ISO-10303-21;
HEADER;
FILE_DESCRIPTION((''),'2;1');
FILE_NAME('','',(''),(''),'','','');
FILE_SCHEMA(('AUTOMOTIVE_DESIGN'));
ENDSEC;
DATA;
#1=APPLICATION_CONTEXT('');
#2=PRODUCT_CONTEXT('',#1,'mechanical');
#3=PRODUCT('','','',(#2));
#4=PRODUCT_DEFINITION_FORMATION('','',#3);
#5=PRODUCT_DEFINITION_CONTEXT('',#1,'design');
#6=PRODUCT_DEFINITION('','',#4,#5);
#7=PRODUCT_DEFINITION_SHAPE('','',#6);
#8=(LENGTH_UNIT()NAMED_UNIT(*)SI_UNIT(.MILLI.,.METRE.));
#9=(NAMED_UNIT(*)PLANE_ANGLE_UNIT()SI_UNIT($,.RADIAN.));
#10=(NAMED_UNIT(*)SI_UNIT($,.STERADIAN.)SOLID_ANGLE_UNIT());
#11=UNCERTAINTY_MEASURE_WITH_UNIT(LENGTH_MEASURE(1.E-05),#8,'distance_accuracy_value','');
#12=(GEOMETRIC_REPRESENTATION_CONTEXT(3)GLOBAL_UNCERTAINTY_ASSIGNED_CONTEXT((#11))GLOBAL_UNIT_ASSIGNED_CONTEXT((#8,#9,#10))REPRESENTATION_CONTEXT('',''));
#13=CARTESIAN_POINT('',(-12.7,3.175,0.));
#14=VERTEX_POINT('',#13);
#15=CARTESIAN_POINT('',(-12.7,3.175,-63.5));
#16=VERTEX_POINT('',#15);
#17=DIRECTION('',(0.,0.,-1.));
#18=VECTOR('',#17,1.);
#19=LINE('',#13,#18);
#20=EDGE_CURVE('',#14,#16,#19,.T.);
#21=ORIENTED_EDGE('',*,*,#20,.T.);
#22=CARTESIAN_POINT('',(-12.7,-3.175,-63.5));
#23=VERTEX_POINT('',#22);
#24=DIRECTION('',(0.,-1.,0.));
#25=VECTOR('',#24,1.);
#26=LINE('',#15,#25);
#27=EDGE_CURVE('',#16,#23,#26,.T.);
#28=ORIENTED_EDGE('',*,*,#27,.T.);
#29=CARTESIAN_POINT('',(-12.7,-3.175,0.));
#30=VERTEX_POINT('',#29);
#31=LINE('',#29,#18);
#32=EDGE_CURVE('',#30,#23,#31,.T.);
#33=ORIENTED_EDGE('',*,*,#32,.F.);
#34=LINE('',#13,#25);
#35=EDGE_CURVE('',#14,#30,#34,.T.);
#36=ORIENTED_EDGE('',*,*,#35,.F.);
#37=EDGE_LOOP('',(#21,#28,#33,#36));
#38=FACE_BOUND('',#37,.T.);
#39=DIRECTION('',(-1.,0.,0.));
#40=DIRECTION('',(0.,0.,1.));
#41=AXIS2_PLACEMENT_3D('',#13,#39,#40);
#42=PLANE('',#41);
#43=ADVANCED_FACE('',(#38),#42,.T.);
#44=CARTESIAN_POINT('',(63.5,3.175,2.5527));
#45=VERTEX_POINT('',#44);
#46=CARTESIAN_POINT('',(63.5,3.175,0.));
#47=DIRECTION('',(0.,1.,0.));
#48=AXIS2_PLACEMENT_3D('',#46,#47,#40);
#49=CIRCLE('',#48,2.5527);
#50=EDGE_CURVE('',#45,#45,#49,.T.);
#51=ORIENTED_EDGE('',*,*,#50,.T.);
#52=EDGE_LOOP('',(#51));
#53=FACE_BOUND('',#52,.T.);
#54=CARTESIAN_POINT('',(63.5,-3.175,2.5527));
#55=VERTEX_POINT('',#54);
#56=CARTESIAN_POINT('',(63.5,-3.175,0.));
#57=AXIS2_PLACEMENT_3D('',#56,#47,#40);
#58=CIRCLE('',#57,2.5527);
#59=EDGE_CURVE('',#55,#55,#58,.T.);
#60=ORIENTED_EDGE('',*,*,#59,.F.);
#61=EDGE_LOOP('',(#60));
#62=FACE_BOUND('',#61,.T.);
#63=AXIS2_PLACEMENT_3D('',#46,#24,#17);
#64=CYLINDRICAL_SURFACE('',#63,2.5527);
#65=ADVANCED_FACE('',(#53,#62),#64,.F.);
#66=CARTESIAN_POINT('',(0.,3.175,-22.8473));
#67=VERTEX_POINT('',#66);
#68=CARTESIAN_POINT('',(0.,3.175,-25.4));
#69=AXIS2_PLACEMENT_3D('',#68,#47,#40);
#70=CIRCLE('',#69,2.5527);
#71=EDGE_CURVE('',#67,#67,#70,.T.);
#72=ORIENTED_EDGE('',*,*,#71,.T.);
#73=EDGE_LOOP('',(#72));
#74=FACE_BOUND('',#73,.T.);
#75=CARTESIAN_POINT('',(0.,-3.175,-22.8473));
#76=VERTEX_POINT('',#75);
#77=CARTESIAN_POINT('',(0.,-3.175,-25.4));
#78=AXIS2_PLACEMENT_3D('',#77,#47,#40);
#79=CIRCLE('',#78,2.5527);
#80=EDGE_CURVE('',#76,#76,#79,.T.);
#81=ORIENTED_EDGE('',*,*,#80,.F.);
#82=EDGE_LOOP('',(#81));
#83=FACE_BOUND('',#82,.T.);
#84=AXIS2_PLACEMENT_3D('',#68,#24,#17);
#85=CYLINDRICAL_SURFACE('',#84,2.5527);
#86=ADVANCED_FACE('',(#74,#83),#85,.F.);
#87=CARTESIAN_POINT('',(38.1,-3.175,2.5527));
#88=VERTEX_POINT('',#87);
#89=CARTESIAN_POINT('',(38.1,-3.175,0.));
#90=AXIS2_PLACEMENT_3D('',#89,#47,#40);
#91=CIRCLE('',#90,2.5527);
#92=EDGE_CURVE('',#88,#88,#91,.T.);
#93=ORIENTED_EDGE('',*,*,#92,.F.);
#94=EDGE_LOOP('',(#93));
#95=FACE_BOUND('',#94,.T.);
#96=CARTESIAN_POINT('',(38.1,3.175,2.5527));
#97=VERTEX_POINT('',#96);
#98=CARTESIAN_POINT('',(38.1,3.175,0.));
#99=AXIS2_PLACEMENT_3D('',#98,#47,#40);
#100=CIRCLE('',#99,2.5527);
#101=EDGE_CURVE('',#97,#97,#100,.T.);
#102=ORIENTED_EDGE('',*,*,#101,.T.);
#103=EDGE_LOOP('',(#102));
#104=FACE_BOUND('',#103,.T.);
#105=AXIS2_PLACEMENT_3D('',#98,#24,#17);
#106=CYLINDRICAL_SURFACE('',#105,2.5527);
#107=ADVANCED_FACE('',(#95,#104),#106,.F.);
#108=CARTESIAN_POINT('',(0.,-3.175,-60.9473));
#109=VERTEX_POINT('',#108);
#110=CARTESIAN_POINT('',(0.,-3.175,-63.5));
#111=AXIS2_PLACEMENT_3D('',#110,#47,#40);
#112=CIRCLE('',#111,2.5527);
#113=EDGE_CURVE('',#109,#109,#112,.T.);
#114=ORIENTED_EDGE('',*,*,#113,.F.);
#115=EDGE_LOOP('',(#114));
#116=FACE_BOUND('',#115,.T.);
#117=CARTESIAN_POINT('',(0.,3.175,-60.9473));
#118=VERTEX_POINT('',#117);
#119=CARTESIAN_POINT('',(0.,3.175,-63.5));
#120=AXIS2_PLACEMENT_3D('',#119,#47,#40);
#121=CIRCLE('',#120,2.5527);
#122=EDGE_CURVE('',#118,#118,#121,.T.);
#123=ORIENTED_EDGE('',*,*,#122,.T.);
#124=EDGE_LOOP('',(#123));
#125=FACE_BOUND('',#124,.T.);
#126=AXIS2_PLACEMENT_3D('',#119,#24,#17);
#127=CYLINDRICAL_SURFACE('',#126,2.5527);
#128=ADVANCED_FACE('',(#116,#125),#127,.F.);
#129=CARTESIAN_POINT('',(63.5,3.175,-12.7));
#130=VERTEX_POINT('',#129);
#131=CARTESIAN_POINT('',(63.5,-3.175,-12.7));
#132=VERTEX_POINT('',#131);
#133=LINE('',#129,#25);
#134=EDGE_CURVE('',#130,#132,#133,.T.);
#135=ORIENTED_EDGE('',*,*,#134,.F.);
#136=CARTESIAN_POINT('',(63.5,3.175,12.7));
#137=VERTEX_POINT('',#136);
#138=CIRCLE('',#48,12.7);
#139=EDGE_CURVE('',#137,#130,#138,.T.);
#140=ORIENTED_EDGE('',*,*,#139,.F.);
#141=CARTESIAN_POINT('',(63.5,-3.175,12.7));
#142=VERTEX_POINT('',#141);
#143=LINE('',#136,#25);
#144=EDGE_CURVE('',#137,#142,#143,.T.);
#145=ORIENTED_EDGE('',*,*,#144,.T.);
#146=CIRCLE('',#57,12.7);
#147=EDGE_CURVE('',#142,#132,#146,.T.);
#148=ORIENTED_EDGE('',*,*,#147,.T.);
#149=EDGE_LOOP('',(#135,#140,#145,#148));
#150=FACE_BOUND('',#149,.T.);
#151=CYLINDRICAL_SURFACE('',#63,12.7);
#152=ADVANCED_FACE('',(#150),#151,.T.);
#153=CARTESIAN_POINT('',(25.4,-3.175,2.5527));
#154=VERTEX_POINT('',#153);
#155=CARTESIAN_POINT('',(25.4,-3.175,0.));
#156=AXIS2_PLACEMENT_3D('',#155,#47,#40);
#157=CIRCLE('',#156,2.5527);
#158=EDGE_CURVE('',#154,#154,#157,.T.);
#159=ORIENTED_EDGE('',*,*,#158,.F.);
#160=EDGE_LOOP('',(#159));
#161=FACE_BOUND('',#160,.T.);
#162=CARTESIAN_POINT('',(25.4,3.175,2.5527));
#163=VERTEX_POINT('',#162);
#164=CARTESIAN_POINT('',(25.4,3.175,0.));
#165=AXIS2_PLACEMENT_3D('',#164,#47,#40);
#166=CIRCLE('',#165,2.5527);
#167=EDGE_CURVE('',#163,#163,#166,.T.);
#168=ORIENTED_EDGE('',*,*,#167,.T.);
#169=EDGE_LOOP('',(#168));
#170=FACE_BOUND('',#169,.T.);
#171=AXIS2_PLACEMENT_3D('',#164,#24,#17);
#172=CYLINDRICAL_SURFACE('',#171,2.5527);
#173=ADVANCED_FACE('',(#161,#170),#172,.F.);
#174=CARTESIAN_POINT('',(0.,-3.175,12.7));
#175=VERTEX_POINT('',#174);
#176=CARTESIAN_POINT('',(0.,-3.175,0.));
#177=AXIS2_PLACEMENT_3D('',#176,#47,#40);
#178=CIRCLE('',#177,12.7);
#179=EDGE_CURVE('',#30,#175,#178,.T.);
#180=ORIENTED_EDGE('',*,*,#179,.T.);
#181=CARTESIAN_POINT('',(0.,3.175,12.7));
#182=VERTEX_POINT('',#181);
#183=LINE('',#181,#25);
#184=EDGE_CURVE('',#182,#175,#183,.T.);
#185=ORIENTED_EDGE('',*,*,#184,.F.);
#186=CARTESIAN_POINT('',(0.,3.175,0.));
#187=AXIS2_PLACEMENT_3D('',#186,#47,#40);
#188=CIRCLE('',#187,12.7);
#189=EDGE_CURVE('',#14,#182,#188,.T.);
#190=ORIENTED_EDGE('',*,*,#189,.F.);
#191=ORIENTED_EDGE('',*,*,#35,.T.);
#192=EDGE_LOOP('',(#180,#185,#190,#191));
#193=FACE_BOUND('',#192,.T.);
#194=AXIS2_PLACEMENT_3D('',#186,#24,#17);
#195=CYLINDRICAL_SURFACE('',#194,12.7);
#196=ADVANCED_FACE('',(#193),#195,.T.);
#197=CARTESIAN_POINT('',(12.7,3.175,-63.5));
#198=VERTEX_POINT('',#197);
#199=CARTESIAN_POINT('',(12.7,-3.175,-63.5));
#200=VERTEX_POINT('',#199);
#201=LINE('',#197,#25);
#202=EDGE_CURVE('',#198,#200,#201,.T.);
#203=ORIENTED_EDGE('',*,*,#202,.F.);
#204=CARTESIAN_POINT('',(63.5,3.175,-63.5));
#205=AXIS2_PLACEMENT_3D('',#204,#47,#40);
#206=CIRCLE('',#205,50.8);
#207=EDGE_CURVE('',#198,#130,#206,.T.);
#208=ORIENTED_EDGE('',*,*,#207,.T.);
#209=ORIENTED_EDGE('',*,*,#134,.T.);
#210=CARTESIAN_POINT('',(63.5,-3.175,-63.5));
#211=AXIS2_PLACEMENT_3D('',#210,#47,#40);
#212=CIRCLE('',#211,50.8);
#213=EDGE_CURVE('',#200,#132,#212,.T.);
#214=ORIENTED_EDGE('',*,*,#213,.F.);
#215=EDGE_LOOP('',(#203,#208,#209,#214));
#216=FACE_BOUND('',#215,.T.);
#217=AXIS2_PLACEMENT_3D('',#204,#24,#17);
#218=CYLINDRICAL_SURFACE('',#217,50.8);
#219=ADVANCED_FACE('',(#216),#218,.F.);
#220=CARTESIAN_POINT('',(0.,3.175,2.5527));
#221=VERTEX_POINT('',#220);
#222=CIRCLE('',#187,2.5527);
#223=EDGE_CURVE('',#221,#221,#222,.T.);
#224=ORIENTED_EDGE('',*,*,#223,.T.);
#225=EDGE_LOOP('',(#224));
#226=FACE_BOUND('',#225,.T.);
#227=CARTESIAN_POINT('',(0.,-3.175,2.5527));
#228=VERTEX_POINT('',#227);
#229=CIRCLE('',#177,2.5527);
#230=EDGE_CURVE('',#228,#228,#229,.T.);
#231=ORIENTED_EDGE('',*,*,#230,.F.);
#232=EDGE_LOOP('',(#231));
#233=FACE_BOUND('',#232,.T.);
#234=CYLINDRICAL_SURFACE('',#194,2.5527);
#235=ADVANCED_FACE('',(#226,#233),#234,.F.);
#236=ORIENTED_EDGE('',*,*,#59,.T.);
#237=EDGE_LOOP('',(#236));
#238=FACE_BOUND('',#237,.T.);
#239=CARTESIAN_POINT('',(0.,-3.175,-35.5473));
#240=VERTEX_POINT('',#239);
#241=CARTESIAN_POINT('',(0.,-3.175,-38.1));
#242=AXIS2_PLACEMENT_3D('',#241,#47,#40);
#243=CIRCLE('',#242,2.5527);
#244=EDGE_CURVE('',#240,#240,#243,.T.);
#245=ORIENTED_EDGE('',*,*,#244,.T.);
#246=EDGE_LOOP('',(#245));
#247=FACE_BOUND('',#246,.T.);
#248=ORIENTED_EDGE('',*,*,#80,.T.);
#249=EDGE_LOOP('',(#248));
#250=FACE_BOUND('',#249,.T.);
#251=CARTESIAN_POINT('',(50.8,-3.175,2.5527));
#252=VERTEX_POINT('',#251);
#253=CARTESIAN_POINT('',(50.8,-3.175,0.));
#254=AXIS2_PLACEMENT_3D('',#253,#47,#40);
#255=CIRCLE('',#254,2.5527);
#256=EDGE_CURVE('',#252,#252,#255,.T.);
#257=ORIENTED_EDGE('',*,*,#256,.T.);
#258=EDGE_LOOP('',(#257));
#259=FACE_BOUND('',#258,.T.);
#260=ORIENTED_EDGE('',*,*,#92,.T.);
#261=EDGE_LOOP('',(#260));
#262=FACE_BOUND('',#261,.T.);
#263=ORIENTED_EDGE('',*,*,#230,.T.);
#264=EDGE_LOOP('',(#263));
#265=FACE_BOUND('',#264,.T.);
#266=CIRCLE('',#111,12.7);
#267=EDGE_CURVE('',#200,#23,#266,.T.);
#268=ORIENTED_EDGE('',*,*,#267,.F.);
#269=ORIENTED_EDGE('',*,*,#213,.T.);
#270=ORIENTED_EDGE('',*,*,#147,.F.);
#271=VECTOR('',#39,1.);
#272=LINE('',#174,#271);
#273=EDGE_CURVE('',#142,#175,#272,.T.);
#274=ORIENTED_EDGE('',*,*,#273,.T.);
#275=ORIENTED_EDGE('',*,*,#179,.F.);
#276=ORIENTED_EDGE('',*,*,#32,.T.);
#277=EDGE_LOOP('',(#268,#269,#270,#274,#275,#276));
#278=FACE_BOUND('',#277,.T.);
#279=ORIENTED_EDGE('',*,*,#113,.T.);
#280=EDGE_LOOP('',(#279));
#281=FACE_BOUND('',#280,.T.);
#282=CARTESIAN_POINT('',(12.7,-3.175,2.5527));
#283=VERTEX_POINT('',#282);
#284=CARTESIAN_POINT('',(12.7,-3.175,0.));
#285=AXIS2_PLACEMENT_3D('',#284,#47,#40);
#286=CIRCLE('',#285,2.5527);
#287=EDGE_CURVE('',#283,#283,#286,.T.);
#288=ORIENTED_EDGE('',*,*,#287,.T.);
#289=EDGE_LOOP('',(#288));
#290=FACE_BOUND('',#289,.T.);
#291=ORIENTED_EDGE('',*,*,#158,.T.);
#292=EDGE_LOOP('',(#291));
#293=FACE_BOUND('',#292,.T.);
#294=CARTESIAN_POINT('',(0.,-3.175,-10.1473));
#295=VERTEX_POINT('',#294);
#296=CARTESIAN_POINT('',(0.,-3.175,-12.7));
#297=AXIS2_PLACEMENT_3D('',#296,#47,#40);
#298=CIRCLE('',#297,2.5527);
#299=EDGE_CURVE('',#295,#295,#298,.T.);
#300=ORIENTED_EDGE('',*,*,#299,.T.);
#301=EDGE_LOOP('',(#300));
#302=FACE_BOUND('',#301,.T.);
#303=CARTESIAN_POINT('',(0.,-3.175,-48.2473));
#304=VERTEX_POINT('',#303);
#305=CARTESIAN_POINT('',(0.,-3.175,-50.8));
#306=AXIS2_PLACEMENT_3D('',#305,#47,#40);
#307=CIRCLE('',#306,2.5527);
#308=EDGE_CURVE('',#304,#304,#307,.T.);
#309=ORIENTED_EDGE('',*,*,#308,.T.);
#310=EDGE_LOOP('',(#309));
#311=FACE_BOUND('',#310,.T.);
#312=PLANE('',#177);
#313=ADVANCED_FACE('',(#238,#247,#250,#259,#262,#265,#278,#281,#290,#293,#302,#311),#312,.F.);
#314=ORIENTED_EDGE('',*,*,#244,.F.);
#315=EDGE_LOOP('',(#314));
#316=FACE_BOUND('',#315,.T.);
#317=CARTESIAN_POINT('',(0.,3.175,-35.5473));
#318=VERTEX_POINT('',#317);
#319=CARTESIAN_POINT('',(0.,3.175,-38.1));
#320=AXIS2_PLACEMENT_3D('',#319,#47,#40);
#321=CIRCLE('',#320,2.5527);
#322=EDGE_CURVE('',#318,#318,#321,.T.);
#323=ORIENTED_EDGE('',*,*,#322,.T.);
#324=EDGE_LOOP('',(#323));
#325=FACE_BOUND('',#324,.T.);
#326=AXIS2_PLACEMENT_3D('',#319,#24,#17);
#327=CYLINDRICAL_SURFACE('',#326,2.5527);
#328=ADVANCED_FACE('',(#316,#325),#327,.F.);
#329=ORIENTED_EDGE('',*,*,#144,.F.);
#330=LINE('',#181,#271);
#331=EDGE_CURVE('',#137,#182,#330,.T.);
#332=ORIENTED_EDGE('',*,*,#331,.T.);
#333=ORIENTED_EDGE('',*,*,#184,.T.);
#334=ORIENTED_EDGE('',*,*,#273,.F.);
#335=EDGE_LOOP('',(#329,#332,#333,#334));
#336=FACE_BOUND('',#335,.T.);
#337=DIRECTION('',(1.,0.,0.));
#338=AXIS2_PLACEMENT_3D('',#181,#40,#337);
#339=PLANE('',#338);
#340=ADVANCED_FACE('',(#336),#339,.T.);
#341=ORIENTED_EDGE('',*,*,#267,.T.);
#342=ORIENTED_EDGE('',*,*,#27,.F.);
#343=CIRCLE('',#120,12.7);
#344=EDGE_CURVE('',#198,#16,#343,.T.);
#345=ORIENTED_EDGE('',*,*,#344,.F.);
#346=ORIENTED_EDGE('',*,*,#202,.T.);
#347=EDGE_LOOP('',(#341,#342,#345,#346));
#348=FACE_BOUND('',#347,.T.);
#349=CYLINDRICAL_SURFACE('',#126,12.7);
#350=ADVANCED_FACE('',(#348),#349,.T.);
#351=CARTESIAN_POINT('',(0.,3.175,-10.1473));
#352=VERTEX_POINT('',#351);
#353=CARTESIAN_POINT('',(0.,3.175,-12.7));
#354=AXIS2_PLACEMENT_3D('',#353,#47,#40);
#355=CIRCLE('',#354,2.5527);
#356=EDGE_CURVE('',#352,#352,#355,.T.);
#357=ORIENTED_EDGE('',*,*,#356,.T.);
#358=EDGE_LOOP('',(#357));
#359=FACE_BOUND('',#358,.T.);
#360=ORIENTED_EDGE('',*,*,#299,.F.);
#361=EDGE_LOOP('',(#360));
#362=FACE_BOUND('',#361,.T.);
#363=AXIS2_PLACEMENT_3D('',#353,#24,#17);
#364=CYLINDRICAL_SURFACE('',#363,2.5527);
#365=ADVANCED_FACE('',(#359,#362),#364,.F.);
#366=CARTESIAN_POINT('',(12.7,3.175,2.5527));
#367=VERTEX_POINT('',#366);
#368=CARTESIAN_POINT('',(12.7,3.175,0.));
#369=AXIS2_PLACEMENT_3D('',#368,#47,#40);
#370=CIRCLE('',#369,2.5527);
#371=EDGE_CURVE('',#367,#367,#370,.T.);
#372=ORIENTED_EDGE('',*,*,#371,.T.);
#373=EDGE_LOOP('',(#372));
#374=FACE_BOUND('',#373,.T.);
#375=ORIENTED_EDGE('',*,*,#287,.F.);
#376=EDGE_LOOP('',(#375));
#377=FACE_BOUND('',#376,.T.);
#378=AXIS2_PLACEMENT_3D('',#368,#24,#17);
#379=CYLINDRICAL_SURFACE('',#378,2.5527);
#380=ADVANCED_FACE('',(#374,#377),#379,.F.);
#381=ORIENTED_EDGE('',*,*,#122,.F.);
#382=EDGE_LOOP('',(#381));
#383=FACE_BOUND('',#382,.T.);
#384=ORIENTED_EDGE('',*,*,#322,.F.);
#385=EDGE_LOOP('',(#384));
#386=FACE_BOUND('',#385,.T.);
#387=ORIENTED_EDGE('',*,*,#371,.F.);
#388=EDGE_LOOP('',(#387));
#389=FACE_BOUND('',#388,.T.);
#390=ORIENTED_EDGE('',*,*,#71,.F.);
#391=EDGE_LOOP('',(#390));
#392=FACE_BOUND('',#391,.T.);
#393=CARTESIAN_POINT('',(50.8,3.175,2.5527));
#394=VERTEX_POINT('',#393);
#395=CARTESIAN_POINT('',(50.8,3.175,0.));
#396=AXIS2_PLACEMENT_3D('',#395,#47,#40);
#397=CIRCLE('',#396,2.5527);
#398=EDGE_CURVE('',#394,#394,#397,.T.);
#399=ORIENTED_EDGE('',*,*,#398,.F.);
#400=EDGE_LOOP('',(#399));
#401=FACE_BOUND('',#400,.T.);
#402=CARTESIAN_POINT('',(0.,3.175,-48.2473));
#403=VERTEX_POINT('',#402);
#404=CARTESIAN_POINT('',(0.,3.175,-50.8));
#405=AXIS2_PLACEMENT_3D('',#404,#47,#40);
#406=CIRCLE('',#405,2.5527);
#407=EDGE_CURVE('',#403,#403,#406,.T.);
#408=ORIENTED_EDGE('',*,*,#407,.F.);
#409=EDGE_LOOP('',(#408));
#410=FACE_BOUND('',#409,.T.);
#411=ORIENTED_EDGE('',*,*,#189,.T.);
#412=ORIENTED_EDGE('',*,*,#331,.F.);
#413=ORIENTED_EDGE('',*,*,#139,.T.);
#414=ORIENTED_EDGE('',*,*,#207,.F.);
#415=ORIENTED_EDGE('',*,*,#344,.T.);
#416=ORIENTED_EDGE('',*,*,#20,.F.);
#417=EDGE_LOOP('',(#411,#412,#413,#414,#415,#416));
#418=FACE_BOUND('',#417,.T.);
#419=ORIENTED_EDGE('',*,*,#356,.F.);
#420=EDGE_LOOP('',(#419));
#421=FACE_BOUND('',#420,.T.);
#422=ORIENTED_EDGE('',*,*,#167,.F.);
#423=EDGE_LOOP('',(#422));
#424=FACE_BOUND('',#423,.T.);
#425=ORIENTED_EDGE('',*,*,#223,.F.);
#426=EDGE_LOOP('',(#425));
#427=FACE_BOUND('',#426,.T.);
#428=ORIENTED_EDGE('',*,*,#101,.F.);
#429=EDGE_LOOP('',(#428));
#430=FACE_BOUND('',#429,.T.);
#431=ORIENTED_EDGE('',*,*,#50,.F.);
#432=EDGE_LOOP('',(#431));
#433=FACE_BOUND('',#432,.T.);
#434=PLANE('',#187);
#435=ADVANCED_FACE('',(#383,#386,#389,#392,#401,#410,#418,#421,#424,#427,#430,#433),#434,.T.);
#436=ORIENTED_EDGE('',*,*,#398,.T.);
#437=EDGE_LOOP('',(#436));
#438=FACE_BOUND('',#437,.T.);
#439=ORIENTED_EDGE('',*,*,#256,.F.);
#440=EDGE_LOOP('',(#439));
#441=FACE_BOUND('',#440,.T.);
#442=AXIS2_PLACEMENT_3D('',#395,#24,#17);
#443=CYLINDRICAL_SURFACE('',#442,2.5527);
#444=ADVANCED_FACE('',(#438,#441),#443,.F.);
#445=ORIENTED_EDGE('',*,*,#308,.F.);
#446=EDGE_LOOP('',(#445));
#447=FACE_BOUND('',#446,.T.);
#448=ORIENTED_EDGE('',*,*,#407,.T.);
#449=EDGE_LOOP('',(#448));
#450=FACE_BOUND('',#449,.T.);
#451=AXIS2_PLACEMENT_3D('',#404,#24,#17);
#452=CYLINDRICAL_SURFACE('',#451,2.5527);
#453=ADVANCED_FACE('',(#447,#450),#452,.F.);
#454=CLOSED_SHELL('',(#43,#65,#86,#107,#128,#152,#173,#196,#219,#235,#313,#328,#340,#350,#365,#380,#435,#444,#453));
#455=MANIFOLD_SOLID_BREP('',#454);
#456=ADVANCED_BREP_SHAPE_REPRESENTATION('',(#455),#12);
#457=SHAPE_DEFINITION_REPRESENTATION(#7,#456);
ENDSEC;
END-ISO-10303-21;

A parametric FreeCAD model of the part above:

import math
import FreeCAD as App
import Part
import Sketcher
from FreeCAD import Vector
Q = App.Units.Quantity

doc = App.newDocument("Part")
body = doc.addObject("PartDesign::Body", "Body")

# Sketch on XZ plane
sketch1 = body.newObject("Sketcher::SketchObject", "Sketch")
sketch1.AttachmentSupport = (doc.getObject("XZ_Plane"), [""])
sketch1.MapMode = "FlatFace"
sketch1.addGeometry([
    Part.LineSegment(Vector(-12.7, -63.5, 0), Vector(-12.7, 0, 0)),  # 0
    Part.ArcOfCircle(Part.Circle(Vector(0, 0, 0), Vector(0, 0, 1), 12.7), math.radians(90), math.radians(180)),  # 1
    Part.LineSegment(Vector(0, 12.7, 0), Vector(63.5, 12.7, 0)),  # 2
    Part.ArcOfCircle(Part.Circle(Vector(63.5, 0, 0), Vector(0, 0, 1), 12.7), math.radians(-90), math.radians(90)),  # 3
    Part.ArcOfCircle(Part.Circle(Vector(63.5, -63.5, 0), Vector(0, 0, 1), 50.8), math.radians(90), math.radians(180)),  # 4
    Part.ArcOfCircle(Part.Circle(Vector(0, -63.5, 0), Vector(0, 0, 1), 12.7), math.radians(180), math.radians(360)),  # 5
    Part.ArcOfCircle(Part.Circle(Vector(0, -12.7, 0), Vector(0, 0, 1), 2.6), math.radians(174), math.radians(360)),  # 6
    Part.ArcOfCircle(Part.Circle(Vector(0, -12.7, 0), Vector(0, 0, 1), 2.6), math.radians(0), math.radians(174)),  # 7
    Part.Circle(Vector(0, -25.4, 0), Vector(0, 0, 1), 2.6),  # 8
    Part.Circle(Vector(0, -38.1, 0), Vector(0, 0, 1), 2.6),  # 9
    Part.Circle(Vector(0, -50.8, 0), Vector(0, 0, 1), 2.6),  # 10
    Part.Circle(Vector(0, -63.5, 0), Vector(0, 0, 1), 2.6),  # 11
    Part.Circle(Vector(0, 0, 0), Vector(0, 0, 1), 2.6),  # 12
    Part.ArcOfCircle(Part.Circle(Vector(12.7, 0, 0), Vector(0, 0, 1), 2.6), math.radians(96), math.radians(270)),  # 13
    Part.ArcOfCircle(Part.Circle(Vector(12.7, 0, 0), Vector(0, 0, 1), 2.6), math.radians(-90), math.radians(0)),  # 14
    Part.ArcOfCircle(Part.Circle(Vector(12.7, 0, 0), Vector(0, 0, 1), 2.6), math.radians(0), math.radians(96)),  # 15
    Part.Circle(Vector(63.5, 0, 0), Vector(0, 0, 1), 2.6),  # 16
    Part.Circle(Vector(38.1, 0, 0), Vector(0, 0, 1), 2.6),  # 17
    Part.Circle(Vector(50.8, 0, 0), Vector(0, 0, 1), 2.6),  # 18
    Part.Circle(Vector(25.4, 0, 0), Vector(0, 0, 1), 2.6),  # 19
], False)
sketch1.addConstraint([
    Sketcher.Constraint("Tangent", 0, 2, 1, 2),
    Sketcher.Constraint("Tangent", 1, 1, 2, 1),
    Sketcher.Constraint("Tangent", 2, 2, 3, 2),
    Sketcher.Constraint("Tangent", 3, 1, 4, 1),
    Sketcher.Constraint("Tangent", 4, 2, 5, 2),
    Sketcher.Constraint("Tangent", 5, 1, 0, 1),
    Sketcher.Constraint("Tangent", 6, 1, 7, 2),
    Sketcher.Constraint("Coincident", 7, 1, 6, 2),
    Sketcher.Constraint("Tangent", 13, 2, 14, 1),
    Sketcher.Constraint("Tangent", 14, 2, 15, 1),
    Sketcher.Constraint("Tangent", 15, 2, 13, 1),
    Sketcher.Constraint("Vertical", 0),
    Sketcher.Constraint("Horizontal", 2),
    Sketcher.Constraint("Coincident", 1, 3, -1, 1),
    Sketcher.Constraint("Coincident", 12, 3, -1, 1),
    Sketcher.Constraint("Coincident", 11, 3, 5, 3),
    Sketcher.Constraint("Coincident", 16, 3, 3, 3),
    Sketcher.Constraint("Equal", 1, 3),
    Sketcher.Constraint("Equal", 3, 5),
    Sketcher.Constraint("Equal", 7, 8),
    Sketcher.Constraint("Equal", 8, 9),
    Sketcher.Constraint("Equal", 9, 10),
    Sketcher.Constraint("Equal", 10, 11),
    Sketcher.Constraint("Equal", 11, 12),
    Sketcher.Constraint("Equal", 12, 13),
    Sketcher.Constraint("Equal", 15, 16),
    Sketcher.Constraint("Equal", 16, 17),
    Sketcher.Constraint("Equal", 17, 18),
    Sketcher.Constraint("Equal", 18, 19),
    Sketcher.Constraint("PointOnObject", 6, 3, -2),
    Sketcher.Constraint("PointOnObject", 8, 3, -2),
    Sketcher.Constraint("PointOnObject", 9, 3, -2),
    Sketcher.Constraint("PointOnObject", 10, 3, -2),
    Sketcher.Constraint("PointOnObject", 13, 3, -1),
    Sketcher.Constraint("PointOnObject", 17, 3, -1),
    Sketcher.Constraint("PointOnObject", 18, 3, -1),
    Sketcher.Constraint("PointOnObject", 19, 3, -1),
    Sketcher.Constraint("PointOnObject", 14, 2, -1),
    Sketcher.Constraint("Horizontal", 4, 3, 5, 3),
    Sketcher.Constraint("Horizontal", 7, 3, 3, 1),
    Sketcher.Constraint("Horizontal", 3, 1, 7, 1),
    Sketcher.Constraint("Vertical", 3, 3, 4, 3),
    Sketcher.Constraint("Vertical", 15, 3, 4, 2),
    Sketcher.Constraint("Vertical", 4, 2, 13, 2),
    Sketcher.Constraint("Radius", 4, Q("2 in")),
    Sketcher.Constraint("Radius", 1, Q("0.5 in")),
    Sketcher.Constraint("Diameter", 8, Q("0.201 in")),
    Sketcher.Constraint("DistanceY", 8, 3, -1, 1, Q("1 in")),
    Sketcher.Constraint("DistanceY", 10, 3, -1, 1, Q("2 in")),
    Sketcher.Constraint("DistanceX", -1, 1, 18, 3, Q("2 in")),
    Sketcher.Constraint("DistanceX", -1, 1, 19, 3, Q("1 in")),
    Sketcher.Constraint("DistanceY", 5, 3, 9, 3, Q("1 in")),
    Sketcher.Constraint("DistanceX", 17, 3, 3, 3, Q("1 in")),
    Sketcher.Constraint("DistanceX", 6, 1, -1, 1, 2.539776),
    Sketcher.Constraint("DistanceX", -1, 1, 15, 2, 12.443454),
])
pad1 = body.newObject("PartDesign::Pad", "Pad")
pad1.Profile = sketch1
pad1.Length = Q("0.25 in")
pad1.Midplane = True

doc.recompute()
